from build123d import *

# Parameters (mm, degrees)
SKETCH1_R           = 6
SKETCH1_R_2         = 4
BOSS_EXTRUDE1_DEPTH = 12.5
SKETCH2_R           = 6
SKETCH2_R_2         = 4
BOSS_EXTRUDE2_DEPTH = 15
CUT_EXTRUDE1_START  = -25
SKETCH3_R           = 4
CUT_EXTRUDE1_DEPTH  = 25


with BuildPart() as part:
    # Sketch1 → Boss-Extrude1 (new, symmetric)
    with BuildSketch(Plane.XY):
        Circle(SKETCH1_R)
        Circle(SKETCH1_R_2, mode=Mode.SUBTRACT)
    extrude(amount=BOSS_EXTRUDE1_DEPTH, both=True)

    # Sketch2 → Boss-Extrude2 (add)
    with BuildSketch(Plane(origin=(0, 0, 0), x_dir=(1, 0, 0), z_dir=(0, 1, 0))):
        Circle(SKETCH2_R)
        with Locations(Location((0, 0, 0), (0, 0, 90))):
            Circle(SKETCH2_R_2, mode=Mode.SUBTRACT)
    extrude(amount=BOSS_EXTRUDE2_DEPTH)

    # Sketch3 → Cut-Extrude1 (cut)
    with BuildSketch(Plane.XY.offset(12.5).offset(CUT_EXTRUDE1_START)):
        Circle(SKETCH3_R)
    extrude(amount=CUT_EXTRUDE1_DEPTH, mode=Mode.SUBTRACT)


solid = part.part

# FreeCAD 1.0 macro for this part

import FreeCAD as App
import Part
import Sketcher
Q = App.Units.Quantity

doc = App.newDocument("Part")
body = doc.addObject("PartDesign::Body", "Body")

# Sketch on XY plane
sketch1 = doc.addObject("Sketcher::SketchObject", "Sketch")
body.addObject(sketch1)
sketch1.AttachmentSupport = (doc.XY_Plane, [""])
sketch1.MapMode = "FlatFace"
sketch1.addGeometry(Part.Circle(App.Vector(0, 0, 0), App.Vector(0, 0, 1), 6), False)
sketch1.addGeometry(Part.Circle(App.Vector(0, 0, 0), App.Vector(0, 0, 1), 4), False)
sketch1.addConstraint(Sketcher.Constraint("Coincident", 0, 3, -1, 1))
sketch1.addConstraint(Sketcher.Constraint("Coincident", 1, 3, -1, 1))
sketch1.addConstraint(Sketcher.Constraint("Diameter", 0, Q("12 mm")))
sketch1.addConstraint(Sketcher.Constraint("Diameter", 1, Q("8 mm")))
pad1 = doc.addObject("PartDesign::Pad", "Pad")
body.addObject(pad1)
pad1.Profile = sketch1
pad1.Length = 25
pad1.Midplane = True

# Sketch on XZ plane
sketch2 = doc.addObject("Sketcher::SketchObject", "Sketch001")
body.addObject(sketch2)
sketch2.AttachmentSupport = (doc.XZ_Plane, [""])
sketch2.MapMode = "FlatFace"
sketch2.addGeometry(Part.Circle(App.Vector(0, 0, 0), App.Vector(0, 0, 1), 6), False)
sketch2.addGeometry(Part.Circle(App.Vector(0, 0, 0), App.Vector(0, 0, 1), 4), False)
sketch2.addConstraint(Sketcher.Constraint("Coincident", 0, 3, -1, 1))
sketch2.addConstraint(Sketcher.Constraint("Coincident", 1, 3, -1, 1))
sketch2.addConstraint(Sketcher.Constraint("Diameter", 0, Q("12 mm")))
sketch2.addConstraint(Sketcher.Constraint("Diameter", 1, Q("8 mm")))
pad2 = doc.addObject("PartDesign::Pad", "Pad001")
body.addObject(pad2)
pad2.Profile = sketch2
pad2.Length = 15
pad2.Reversed = True

# Sketch on XY plane
sketch3 = doc.addObject("Sketcher::SketchObject", "Sketch002")
body.addObject(sketch3)
sketch3.AttachmentSupport = (doc.XY_Plane, [""])
sketch3.MapMode = "FlatFace"
sketch3.AttachmentOffset = App.Placement(App.Vector(0, 0, -12.5), App.Rotation())
sketch3.addGeometry(Part.Circle(App.Vector(0, 0, 0), App.Vector(0, 0, 1), 4), False)
sketch3.addConstraint(Sketcher.Constraint("Coincident", 0, 3, -1, 1))
sketch3.addConstraint(Sketcher.Constraint("Diameter", 0, Q("8 mm")))
pocket1 = doc.addObject("PartDesign::Pocket", "Pocket")
body.addObject(pocket1)
pocket1.Profile = sketch3
pocket1.Length = 25
pocket1.Reversed = True

doc.recompute()
